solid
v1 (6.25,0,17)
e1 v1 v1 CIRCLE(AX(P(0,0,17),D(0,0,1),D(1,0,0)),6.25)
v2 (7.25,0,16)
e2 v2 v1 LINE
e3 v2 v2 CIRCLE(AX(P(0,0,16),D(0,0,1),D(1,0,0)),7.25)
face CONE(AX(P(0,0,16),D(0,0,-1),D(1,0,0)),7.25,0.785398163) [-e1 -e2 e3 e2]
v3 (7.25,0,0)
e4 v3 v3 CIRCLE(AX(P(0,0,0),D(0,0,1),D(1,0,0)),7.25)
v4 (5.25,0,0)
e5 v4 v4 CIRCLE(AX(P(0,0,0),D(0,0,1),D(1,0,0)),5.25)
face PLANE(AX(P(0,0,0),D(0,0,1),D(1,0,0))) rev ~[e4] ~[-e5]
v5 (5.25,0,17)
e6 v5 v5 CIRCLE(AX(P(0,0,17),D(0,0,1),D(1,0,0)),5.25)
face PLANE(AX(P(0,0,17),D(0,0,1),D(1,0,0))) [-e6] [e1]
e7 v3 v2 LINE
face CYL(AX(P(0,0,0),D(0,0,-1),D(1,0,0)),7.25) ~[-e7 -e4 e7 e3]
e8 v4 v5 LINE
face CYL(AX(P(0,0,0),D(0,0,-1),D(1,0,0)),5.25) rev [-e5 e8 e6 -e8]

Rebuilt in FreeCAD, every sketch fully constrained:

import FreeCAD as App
import Part
import Sketcher

V = App.Vector


def edges_at(feature, points):
    """Names of the edges that pass closest to the given points."""
    edges = feature.Shape.Edges
    near = lambda p: min(range(len(edges)), key=lambda i: edges[i].distToShape(Part.Vertex(*p))[0])
    return sorted({f"Edge{near(p) + 1}" for p in points})

doc = App.newDocument("Part")
body = doc.addObject("PartDesign::Body", "Body")

# Sketch on XY plane
sketch1 = body.newObject("Sketcher::SketchObject", "Sketch")
sketch1.AttachmentSupport = (doc.getObject("XY_Plane"), [""])
sketch1.MapMode = "FlatFace"
sketch1.addGeometry(Part.Circle(V(0, 0, 0), V(0, 0, 1), 7.25), False)
sketch1.addGeometry(Part.Circle(V(0, 0, 0), V(0, 0, 1), 5.25), False)
sketch1.addConstraint(Sketcher.Constraint("Coincident", 0, 3, -1, 1))
sketch1.addConstraint(Sketcher.Constraint("Coincident", 1, 3, -1, 1))
sketch1.addConstraint(Sketcher.Constraint("Diameter", 0, 14.5))
sketch1.addConstraint(Sketcher.Constraint("Diameter", 1, 10.5))
pad1 = body.newObject("PartDesign::Pad", "Pad")
pad1.Profile = sketch1
pad1.Length = 17
doc.recompute()

chamfer = body.newObject("PartDesign::Chamfer", "Chamfer")
chamfer.Base = (pad1, edges_at(pad1, [(-7.25, 0, 17)]))
chamfer.Size = 1

doc.recompute()
